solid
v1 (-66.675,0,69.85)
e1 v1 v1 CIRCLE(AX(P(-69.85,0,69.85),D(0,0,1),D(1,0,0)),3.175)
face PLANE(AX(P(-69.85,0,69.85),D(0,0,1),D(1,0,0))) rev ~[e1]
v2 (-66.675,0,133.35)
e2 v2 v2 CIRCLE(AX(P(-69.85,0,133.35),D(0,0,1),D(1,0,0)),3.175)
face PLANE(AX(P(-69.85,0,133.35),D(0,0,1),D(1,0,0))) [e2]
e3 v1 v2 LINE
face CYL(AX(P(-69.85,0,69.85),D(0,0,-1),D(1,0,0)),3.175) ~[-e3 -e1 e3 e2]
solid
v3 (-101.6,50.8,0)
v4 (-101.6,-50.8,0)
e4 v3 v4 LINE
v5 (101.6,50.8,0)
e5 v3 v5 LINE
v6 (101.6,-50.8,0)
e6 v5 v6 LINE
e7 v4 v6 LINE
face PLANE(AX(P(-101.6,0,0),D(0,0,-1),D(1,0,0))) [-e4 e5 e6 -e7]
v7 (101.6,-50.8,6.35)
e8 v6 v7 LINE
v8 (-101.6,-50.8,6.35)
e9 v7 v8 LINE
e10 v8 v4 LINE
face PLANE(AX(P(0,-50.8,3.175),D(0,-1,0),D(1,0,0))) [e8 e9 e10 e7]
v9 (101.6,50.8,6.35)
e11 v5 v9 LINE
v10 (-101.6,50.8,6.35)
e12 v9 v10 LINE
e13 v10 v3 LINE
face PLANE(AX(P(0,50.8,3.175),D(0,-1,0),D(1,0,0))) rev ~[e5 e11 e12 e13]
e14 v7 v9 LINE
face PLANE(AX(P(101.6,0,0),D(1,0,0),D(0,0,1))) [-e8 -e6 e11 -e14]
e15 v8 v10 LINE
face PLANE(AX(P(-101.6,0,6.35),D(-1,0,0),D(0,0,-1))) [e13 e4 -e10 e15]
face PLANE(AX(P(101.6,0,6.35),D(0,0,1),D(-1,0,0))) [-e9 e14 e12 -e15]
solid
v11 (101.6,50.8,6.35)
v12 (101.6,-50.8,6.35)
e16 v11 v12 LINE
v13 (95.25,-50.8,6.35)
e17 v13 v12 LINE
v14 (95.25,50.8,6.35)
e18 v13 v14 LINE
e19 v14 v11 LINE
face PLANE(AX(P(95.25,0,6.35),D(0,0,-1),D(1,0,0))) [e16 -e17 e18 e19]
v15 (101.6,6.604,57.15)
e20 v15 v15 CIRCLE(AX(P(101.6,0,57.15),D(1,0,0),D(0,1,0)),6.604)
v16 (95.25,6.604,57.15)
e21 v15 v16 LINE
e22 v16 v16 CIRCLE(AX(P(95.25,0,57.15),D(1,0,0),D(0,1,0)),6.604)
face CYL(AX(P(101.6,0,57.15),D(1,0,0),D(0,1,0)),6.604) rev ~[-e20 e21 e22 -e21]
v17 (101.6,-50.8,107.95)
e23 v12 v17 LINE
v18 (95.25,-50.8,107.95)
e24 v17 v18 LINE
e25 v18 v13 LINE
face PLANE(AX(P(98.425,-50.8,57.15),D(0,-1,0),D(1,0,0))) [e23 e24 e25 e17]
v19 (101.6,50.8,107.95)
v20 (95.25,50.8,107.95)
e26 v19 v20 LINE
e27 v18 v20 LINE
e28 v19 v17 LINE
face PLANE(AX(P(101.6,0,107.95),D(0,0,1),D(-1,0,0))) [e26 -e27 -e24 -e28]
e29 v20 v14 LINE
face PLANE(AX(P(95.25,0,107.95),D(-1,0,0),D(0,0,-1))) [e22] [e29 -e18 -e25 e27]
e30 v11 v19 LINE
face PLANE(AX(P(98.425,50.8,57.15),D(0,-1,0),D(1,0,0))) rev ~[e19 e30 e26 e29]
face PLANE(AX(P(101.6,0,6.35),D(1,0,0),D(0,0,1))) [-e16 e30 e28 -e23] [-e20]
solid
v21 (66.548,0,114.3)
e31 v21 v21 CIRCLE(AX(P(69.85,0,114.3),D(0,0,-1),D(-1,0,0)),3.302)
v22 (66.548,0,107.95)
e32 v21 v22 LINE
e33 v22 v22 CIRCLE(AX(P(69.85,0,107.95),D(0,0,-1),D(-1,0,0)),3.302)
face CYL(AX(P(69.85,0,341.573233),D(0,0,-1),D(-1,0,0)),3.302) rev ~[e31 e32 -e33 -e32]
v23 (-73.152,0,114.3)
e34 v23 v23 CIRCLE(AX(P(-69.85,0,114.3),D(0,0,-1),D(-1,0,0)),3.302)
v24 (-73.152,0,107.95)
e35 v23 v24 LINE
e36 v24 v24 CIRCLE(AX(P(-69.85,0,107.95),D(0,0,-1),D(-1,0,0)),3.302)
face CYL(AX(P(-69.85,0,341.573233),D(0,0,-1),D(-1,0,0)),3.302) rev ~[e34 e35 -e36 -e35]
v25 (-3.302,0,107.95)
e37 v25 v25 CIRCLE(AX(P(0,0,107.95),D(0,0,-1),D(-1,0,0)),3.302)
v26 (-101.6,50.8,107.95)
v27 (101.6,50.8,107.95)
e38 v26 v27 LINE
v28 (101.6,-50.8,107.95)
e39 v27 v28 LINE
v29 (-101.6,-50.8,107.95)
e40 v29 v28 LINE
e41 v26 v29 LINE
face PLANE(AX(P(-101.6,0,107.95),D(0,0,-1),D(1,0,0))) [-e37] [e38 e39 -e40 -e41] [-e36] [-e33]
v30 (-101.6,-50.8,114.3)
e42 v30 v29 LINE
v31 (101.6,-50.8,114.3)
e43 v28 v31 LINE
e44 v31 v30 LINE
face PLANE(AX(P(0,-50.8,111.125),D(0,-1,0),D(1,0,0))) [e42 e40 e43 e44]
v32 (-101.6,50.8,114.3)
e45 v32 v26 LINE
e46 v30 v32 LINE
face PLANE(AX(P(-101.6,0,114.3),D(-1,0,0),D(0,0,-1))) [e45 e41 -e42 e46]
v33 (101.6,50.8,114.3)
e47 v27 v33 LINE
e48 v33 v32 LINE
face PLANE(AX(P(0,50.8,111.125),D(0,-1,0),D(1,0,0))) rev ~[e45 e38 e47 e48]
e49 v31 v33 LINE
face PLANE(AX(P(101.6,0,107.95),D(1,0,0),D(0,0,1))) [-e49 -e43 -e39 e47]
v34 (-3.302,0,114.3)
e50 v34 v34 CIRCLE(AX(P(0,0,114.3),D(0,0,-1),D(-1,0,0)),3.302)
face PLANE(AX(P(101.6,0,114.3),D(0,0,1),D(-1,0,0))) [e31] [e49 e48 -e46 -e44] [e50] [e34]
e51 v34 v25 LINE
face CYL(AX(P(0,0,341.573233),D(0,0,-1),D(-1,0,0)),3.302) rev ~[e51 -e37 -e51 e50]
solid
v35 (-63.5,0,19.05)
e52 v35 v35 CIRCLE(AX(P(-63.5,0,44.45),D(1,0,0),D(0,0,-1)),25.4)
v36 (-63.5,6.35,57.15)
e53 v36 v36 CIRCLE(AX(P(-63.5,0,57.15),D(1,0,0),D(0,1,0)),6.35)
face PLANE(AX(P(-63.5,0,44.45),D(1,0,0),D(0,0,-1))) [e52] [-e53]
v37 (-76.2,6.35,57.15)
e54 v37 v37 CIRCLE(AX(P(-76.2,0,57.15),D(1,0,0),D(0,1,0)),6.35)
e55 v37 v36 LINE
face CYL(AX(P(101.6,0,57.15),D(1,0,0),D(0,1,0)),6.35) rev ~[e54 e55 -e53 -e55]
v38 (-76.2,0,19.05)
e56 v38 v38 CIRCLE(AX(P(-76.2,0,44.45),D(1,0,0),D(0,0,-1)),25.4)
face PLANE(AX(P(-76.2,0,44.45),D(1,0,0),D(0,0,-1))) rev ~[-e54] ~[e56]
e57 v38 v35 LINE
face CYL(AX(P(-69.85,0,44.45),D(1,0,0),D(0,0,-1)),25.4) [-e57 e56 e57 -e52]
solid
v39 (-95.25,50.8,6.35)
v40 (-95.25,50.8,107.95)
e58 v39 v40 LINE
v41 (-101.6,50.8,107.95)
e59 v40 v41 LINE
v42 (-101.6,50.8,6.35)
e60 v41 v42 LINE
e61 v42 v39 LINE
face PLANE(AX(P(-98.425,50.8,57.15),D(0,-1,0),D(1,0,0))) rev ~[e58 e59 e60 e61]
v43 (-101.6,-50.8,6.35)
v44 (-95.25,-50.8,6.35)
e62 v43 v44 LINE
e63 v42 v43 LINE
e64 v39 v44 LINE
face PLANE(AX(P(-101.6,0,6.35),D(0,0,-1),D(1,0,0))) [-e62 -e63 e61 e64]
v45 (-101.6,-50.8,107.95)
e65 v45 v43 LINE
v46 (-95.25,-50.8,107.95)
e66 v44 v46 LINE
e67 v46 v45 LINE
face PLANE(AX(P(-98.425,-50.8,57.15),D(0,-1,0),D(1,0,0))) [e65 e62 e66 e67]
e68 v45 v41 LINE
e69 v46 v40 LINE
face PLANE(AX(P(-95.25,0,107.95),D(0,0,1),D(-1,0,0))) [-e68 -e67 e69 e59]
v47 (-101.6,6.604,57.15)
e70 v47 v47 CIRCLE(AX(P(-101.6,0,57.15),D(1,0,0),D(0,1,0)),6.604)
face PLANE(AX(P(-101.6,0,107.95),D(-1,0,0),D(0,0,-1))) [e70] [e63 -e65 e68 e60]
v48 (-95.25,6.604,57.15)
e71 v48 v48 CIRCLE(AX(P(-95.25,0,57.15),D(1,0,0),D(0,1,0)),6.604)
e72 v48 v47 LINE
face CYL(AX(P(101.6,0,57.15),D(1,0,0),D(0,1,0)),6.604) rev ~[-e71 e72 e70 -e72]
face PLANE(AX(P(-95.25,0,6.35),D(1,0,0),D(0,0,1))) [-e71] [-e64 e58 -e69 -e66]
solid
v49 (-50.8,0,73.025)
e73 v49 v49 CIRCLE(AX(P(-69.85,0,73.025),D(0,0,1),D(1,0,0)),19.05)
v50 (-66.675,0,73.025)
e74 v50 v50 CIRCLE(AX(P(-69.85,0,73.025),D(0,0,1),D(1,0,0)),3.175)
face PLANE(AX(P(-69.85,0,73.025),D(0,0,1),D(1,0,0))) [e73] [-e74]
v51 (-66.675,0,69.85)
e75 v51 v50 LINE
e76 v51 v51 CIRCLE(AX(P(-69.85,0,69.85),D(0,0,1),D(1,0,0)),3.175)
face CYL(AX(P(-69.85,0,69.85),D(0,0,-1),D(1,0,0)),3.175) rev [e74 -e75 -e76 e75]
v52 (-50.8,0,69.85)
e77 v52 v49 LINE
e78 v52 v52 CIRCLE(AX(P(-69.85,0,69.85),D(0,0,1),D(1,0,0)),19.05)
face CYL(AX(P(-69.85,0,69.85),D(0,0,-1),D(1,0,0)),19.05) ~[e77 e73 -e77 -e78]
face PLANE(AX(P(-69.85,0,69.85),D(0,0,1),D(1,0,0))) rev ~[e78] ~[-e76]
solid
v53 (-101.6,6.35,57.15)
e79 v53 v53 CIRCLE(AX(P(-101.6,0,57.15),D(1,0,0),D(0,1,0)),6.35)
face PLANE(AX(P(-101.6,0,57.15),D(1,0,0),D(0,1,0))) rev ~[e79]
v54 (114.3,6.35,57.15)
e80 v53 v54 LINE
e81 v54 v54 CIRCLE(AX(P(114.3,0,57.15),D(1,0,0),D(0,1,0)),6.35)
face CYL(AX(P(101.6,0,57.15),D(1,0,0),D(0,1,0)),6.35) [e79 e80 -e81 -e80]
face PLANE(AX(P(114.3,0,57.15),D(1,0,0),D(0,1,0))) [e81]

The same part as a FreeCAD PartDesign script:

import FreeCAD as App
import Part
import Sketcher

V = App.Vector
Q = App.Units.Quantity

doc = App.newDocument("Part")
body = doc.addObject("PartDesign::Body", "Body")

sketch1 = body.newObject("Sketcher::SketchObject", "Sketch")
sketch1.AttachmentSupport = (doc.getObject("XZ_Plane"), [""])
sketch1.MapMode = "FlatFace"
sketch1.addGeometry(Part.LineSegment(V(-102, 6, 0), V(-102, 0, 0)), False)
sketch1.addGeometry(Part.LineSegment(V(-102, 0, 0), V(102, 0, 0)), False)
sketch1.addGeometry(Part.LineSegment(V(102, 0, 0), V(102, 6, 0)), False)
sketch1.addGeometry(Part.LineSegment(V(102, 6, 0), V(-102, 6, 0)), False)
sketch1.addConstraint(Sketcher.Constraint("Coincident", 0, 2, 1, 1))
sketch1.addConstraint(Sketcher.Constraint("Coincident", 1, 2, 2, 1))
sketch1.addConstraint(Sketcher.Constraint("Coincident", 2, 2, 3, 1))
sketch1.addConstraint(Sketcher.Constraint("Coincident", 3, 2, 0, 1))
sketch1.addConstraint(Sketcher.Constraint("Vertical", 0))
sketch1.addConstraint(Sketcher.Constraint("Horizontal", 1))
sketch1.addConstraint(Sketcher.Constraint("Vertical", 2))
sketch1.addConstraint(Sketcher.Constraint("Horizontal", 3))
sketch1.addConstraint(Sketcher.Constraint("Symmetric", 0, 2, 1, 2, -1, 1))
sketch1.addConstraint(Sketcher.Constraint("DistanceX", 1, 1, 1, 2, Q("8 in")))
sketch1.addConstraint(Sketcher.Constraint("DistanceY", 0, 2, 0, 1, Q("0.25 in")))
pad1 = body.newObject("PartDesign::Pad", "Pad")
pad1.Profile = sketch1
pad1.Length = Q("4 in")
pad1.Midplane = True
body2 = doc.addObject("PartDesign::Body", "Body001")

sketch2 = body2.newObject("Sketcher::SketchObject", "Sketch001")
sketch2.AttachmentSupport = (doc.getObject("XZ_Plane001"), [""])
sketch2.MapMode = "FlatFace"
sketch2.addGeometry(Part.LineSegment(V(-102, 114, 0), V(-102, 108, 0)), False)
sketch2.addGeometry(Part.LineSegment(V(-102, 108, 0), V(102, 108, 0)), False)
sketch2.addGeometry(Part.LineSegment(V(102, 108, 0), V(102, 114, 0)), False)
sketch2.addGeometry(Part.LineSegment(V(102, 114, 0), V(-102, 114, 0)), False)
sketch2.addConstraint(Sketcher.Constraint("Coincident", 0, 2, 1, 1))
sketch2.addConstraint(Sketcher.Constraint("Coincident", 1, 2, 2, 1))
sketch2.addConstraint(Sketcher.Constraint("Coincident", 2, 2, 3, 1))
sketch2.addConstraint(Sketcher.Constraint("Coincident", 3, 2, 0, 1))
sketch2.addConstraint(Sketcher.Constraint("Vertical", 0))
sketch2.addConstraint(Sketcher.Constraint("Horizontal", 1))
sketch2.addConstraint(Sketcher.Constraint("Vertical", 2))
sketch2.addConstraint(Sketcher.Constraint("Horizontal", 3))
sketch2.addConstraint(Sketcher.Constraint("DistanceX", 1, 1, 1, 2, Q("8 in")))
sketch2.addConstraint(Sketcher.Constraint("DistanceX", 0, 2, -1, 1, Q("4 in")))
sketch2.addConstraint(Sketcher.Constraint("DistanceY", 0, 2, 0, 1, Q("0.25 in")))
sketch2.addConstraint(Sketcher.Constraint("DistanceY", -1, 1, 2, 2, Q("4.5 in")))
pad2 = body2.newObject("PartDesign::Pad", "Pad001")
pad2.Profile = sketch2
pad2.Length = Q("4 in")
pad2.Midplane = True

sketch3 = body2.newObject("Sketcher::SketchObject", "Sketch002")
sketch3.AttachmentSupport = (doc.getObject("XY_Plane001"), [""])
sketch3.MapMode = "FlatFace"
sketch3.AttachmentOffset = App.Placement(V(0, 0, 4.5 * 25.4), App.Rotation())
sketch3.addGeometry(Part.Circle(V(-69.8, 0, 0), V(0, 0, 1), 3.3), False)
sketch3.addGeometry(Part.Circle(V(0, 0, 0), V(0, 0, 1), 3.3), False)
sketch3.addGeometry(Part.Circle(V(69.8, 0, 0), V(0, 0, 1), 3.3), False)
sketch3.addConstraint(Sketcher.Constraint("Coincident", 1, 3, -1, 1))
sketch3.addConstraint(Sketcher.Constraint("Equal", 0, 1))
sketch3.addConstraint(Sketcher.Constraint("Equal", 1, 2))
sketch3.addConstraint(Sketcher.Constraint("Symmetric", 0, 3, 2, 3, -1, 1))
sketch3.addConstraint(Sketcher.Constraint("PointOnObject", 0, 3, -1))
sketch3.addConstraint(Sketcher.Constraint("Diameter", 0, Q("0.26 in")))
sketch3.addConstraint(Sketcher.Constraint("DistanceX", 0, 3, 2, 3, Q("5.5 in")))
doc.recompute()
hole = body2.newObject("PartDesign::Hole", "Hole")
hole.Profile = sketch3
hole.ThreadType = "None"
hole.Diameter = Q("0.26 in")
hole.DepthType = "ThroughAll"
body3 = doc.addObject("PartDesign::Body", "Body002")

sketch4 = body3.newObject("Sketcher::SketchObject", "Sketch003")
sketch4.AttachmentSupport = (doc.getObject("XZ_Plane002"), [""])
sketch4.MapMode = "FlatFace"
sketch4.addGeometry(Part.LineSegment(V(-102, 108, 0), V(-102, 6, 0)), False)
sketch4.addGeometry(Part.LineSegment(V(-102, 6, 0), V(-95, 6, 0)), False)
sketch4.addGeometry(Part.LineSegment(V(-95, 6, 0), V(-95, 108, 0)), False)
sketch4.addGeometry(Part.LineSegment(V(-95, 108, 0), V(-102, 108, 0)), False)
sketch4.addConstraint(Sketcher.Constraint("Coincident", 0, 2, 1, 1))
sketch4.addConstraint(Sketcher.Constraint("Coincident", 1, 2, 2, 1))
sketch4.addConstraint(Sketcher.Constraint("Coincident", 2, 2, 3, 1))
sketch4.addConstraint(Sketcher.Constraint("Coincident", 3, 2, 0, 1))
sketch4.addConstraint(Sketcher.Constraint("Vertical", 0))
sketch4.addConstraint(Sketcher.Constraint("Horizontal", 1))
sketch4.addConstraint(Sketcher.Constraint("Vertical", 2))
sketch4.addConstraint(Sketcher.Constraint("Horizontal", 3))
sketch4.addConstraint(Sketcher.Constraint("DistanceY", 0, 2, 0, 1, Q("4 in")))
sketch4.addConstraint(Sketcher.Constraint("DistanceX", 0, 2, -1, 1, Q("4 in")))
sketch4.addConstraint(Sketcher.Constraint("DistanceX", 1, 1, 1, 2, Q("0.25 in")))
sketch4.addConstraint(Sketcher.Constraint("DistanceY", -1, 1, 0, 2, Q("0.25 in")))
pad3 = body3.newObject("PartDesign::Pad", "Pad002")
pad3.Profile = sketch4
pad3.Type = "TwoLengths"
pad3.Length = Q("2 in")
pad3.Length2 = Q("2 in")
body4 = doc.addObject("PartDesign::Body", "Body003")

sketch5 = body4.newObject("Sketcher::SketchObject", "Sketch004")
sketch5.AttachmentSupport = (doc.getObject("XZ_Plane003"), [""])
sketch5.MapMode = "FlatFace"
sketch5.addGeometry(Part.LineSegment(V(95, 6, 0), V(102, 6, 0)), False)
sketch5.addGeometry(Part.LineSegment(V(102, 6, 0), V(102, 108, 0)), False)
sketch5.addGeometry(Part.LineSegment(V(102, 108, 0), V(95, 108, 0)), False)
sketch5.addGeometry(Part.LineSegment(V(95, 108, 0), V(95, 6, 0)), False)
sketch5.addConstraint(Sketcher.Constraint("Coincident", 0, 2, 1, 1))
sketch5.addConstraint(Sketcher.Constraint("Coincident", 1, 2, 2, 1))
sketch5.addConstraint(Sketcher.Constraint("Coincident", 2, 2, 3, 1))
sketch5.addConstraint(Sketcher.Constraint("Coincident", 3, 2, 0, 1))
sketch5.addConstraint(Sketcher.Constraint("Horizontal", 0))
sketch5.addConstraint(Sketcher.Constraint("Vertical", 1))
sketch5.addConstraint(Sketcher.Constraint("Horizontal", 2))
sketch5.addConstraint(Sketcher.Constraint("Vertical", 3))
sketch5.addConstraint(Sketcher.Constraint("DistanceY", 1, 1, 1, 2, Q("4 in")))
sketch5.addConstraint(Sketcher.Constraint("DistanceX", -1, 1, 0, 2, Q("4 in")))
sketch5.addConstraint(Sketcher.Constraint("DistanceX", 0, 1, 0, 2, Q("0.25 in")))
sketch5.addConstraint(Sketcher.Constraint("DistanceY", -1, 1, 0, 2, Q("0.25 in")))
pad4 = body4.newObject("PartDesign::Pad", "Pad003")
pad4.Profile = sketch5
pad4.Type = "TwoLengths"
pad4.Length = Q("2 in")
pad4.Length2 = Q("2 in")
body5 = doc.addObject("PartDesign::Body", "Body004")

sketch6 = body5.newObject("Sketcher::SketchObject", "Sketch005")
sketch6.AttachmentSupport = (doc.getObject("YZ_Plane004"), [""])
sketch6.MapMode = "FlatFace"
sketch6.AttachmentOffset = App.Placement(V(0, 0, 4 * 25.4), App.Rotation())
sketch6.addGeometry(Part.Circle(V(0, 57, 0), V(0, 0, 1), 7), False)
sketch6.addConstraint(Sketcher.Constraint("PointOnObject", 0, 3, -2))
sketch6.addConstraint(Sketcher.Constraint("Diameter", 0, Q("0.52 in")))
sketch6.addConstraint(Sketcher.Constraint("DistanceY", -1, 1, 0, 3, Q("2.25 in")))
pad5 = body5.newObject("PartDesign::Pad", "Pad004")
pad5.Profile = sketch6
pad5.Length = 203.201
pad5.Reversed = True
doc.recompute()

body6 = doc.addObject("PartDesign::Body", "Body005")
body6.BaseFeature = body5
boolean = body3.newObject("PartDesign::Boolean", "Boolean")
boolean.Type = "Cut"
boolean.addObjects([body6])
doc.recompute()

boolean2 = body4.newObject("PartDesign::Boolean", "Boolean001")
boolean2.Type = "Cut"
boolean2.addObjects([body5])
body7 = doc.addObject("PartDesign::Body", "Body006")

sketch7 = body7.newObject("Sketcher::SketchObject", "Sketch006")
sketch7.AttachmentSupport = (doc.getObject("YZ_Plane006"), [""])
sketch7.MapMode = "FlatFace"
sketch7.AttachmentOffset = App.Placement(V(0, 0, 4 * 25.4), App.Rotation())
sketch7.addGeometry(Part.Circle(V(0, 57, 0), V(0, 0, 1), 6), False)
sketch7.addConstraint(Sketcher.Constraint("PointOnObject", 0, 3, -2))
sketch7.addConstraint(Sketcher.Constraint("Diameter", 0, Q("0.5 in")))
sketch7.addConstraint(Sketcher.Constraint("DistanceY", -1, 1, 0, 3, Q("2.25 in")))
pad6 = body7.newObject("PartDesign::Pad", "Pad005")
pad6.Profile = sketch7
pad6.Type = "TwoLengths"
pad6.Length = Q("0.5 in")
pad6.Length2 = Q("8 in")
body8 = doc.addObject("PartDesign::Body", "Body007")

sketch8 = body8.newObject("Sketcher::SketchObject", "Sketch007")
sketch8.AttachmentSupport = (doc.getObject("XZ_Plane007"), [""])
sketch8.MapMode = "FlatFace"
sketch8.addGeometry(Part.LineSegment(V(-76, 44, 0), V(-76, 19, 0)), False)
sketch8.addGeometry(Part.LineSegment(V(-76, 19, 0), V(-64, 19, 0)), False)
sketch8.addGeometry(Part.LineSegment(V(-64, 19, 0), V(-64, 44, 0)), False)
sketch8.addGeometry(Part.LineSegment(V(-64, 44, 0), V(-76, 44, 0)), False)
sketch8.addGeometry(Part.LineSegment(V(-76, 44, 0), V(-64, 44, 0)), True)
sketch8.addConstraint(Sketcher.Constraint("Coincident", 0, 2, 1, 1))
sketch8.addConstraint(Sketcher.Constraint("Coincident", 1, 2, 2, 1))
sketch8.addConstraint(Sketcher.Constraint("Coincident", 2, 2, 3, 1))
sketch8.addConstraint(Sketcher.Constraint("Coincident", 3, 2, 0, 1))
sketch8.addConstraint(Sketcher.Constraint("Vertical", 0))
sketch8.addConstraint(Sketcher.Constraint("Horizontal", 1))
sketch8.addConstraint(Sketcher.Constraint("Vertical", 2))
sketch8.addConstraint(Sketcher.Constraint("Horizontal", 3))
sketch8.addConstraint(Sketcher.Constraint("Horizontal", 4))
sketch8.addConstraint(Sketcher.Constraint("Coincident", 4, 1, 3, 2))
sketch8.addConstraint(Sketcher.Constraint("Vertical", 1, 2, 4, 2))
sketch8.addConstraint(Sketcher.Constraint("DistanceY", 0, 2, 0, 1, Q("1 in")))
sketch8.addConstraint(Sketcher.Constraint("DistanceX", 1, 1, 1, 2, Q("0.5 in")))
sketch8.addConstraint(Sketcher.Constraint("DistanceX", 0, 2, -1, 1, Q("3 in")))
sketch8.addConstraint(Sketcher.Constraint("DistanceY", -1, 1, 0, 2, Q("0.75 in")))
revolution = body8.newObject("PartDesign::Revolution", "Revolution")
revolution.Profile = sketch8
revolution.ReferenceAxis = (sketch8, ["Axis0"])
revolution.Angle = 360
doc.recompute()

body9 = doc.addObject("PartDesign::Body", "Body008")
body9.BaseFeature = body7
boolean3 = body8.newObject("PartDesign::Boolean", "Boolean002")
boolean3.Type = "Cut"
boolean3.addObjects([body9])
doc.recompute()
body10 = doc.addObject("PartDesign::Body", "Body009")

sketch9 = body10.newObject("Sketcher::SketchObject", "Sketch008")
sketch9.AttachmentSupport = (doc.getObject("XY_Plane009"), [""])
sketch9.MapMode = "FlatFace"
sketch9.AttachmentOffset = App.Placement(V(0, 0, 2.75 * 25.4), App.Rotation())
sketch9.addGeometry(Part.Circle(V(-69.8, 0, 0), V(0, 0, 1), 3.2), False)
sketch9.addConstraint(Sketcher.Constraint("PointOnObject", 0, 3, -1))
sketch9.addConstraint(Sketcher.Constraint("Diameter", 0, Q("0.25 in")))
sketch9.addConstraint(Sketcher.Constraint("DistanceX", 0, 3, -1, 1, Q("2.75 in")))
pad7 = body10.newObject("PartDesign::Pad", "Pad006")
pad7.Profile = sketch9
pad7.Length = Q("2.5 in")
body11 = doc.addObject("PartDesign::Body", "Body010")

sketch10 = body11.newObject("Sketcher::SketchObject", "Sketch009")
sketch10.AttachmentSupport = (doc.getObject("XY_Plane010"), [""])
sketch10.MapMode = "FlatFace"
sketch10.AttachmentOffset = App.Placement(V(0, 0, 2.75 * 25.4), App.Rotation())
sketch10.addGeometry(Part.Circle(V(-69.8, 0, 0), V(0, 0, 1), 19.1), False)
sketch10.addGeometry(Part.Circle(V(-69.8, 0, 0), V(0, 0, 1), 3.2), False)
sketch10.addConstraint(Sketcher.Constraint("Coincident", 1, 3, 0, 3))
sketch10.addConstraint(Sketcher.Constraint("PointOnObject", 0, 3, -1))
sketch10.addConstraint(Sketcher.Constraint("Diameter", 0, Q("1.5 in")))
sketch10.addConstraint(Sketcher.Constraint("Diameter", 1, Q("0.25 in")))
sketch10.addConstraint(Sketcher.Constraint("DistanceX", 0, 3, -1, 1, Q("2.75 in")))
pad8 = body11.newObject("PartDesign::Pad", "Pad007")
pad8.Profile = sketch10
pad8.Length = Q("0.125 in")

doc.recompute()
